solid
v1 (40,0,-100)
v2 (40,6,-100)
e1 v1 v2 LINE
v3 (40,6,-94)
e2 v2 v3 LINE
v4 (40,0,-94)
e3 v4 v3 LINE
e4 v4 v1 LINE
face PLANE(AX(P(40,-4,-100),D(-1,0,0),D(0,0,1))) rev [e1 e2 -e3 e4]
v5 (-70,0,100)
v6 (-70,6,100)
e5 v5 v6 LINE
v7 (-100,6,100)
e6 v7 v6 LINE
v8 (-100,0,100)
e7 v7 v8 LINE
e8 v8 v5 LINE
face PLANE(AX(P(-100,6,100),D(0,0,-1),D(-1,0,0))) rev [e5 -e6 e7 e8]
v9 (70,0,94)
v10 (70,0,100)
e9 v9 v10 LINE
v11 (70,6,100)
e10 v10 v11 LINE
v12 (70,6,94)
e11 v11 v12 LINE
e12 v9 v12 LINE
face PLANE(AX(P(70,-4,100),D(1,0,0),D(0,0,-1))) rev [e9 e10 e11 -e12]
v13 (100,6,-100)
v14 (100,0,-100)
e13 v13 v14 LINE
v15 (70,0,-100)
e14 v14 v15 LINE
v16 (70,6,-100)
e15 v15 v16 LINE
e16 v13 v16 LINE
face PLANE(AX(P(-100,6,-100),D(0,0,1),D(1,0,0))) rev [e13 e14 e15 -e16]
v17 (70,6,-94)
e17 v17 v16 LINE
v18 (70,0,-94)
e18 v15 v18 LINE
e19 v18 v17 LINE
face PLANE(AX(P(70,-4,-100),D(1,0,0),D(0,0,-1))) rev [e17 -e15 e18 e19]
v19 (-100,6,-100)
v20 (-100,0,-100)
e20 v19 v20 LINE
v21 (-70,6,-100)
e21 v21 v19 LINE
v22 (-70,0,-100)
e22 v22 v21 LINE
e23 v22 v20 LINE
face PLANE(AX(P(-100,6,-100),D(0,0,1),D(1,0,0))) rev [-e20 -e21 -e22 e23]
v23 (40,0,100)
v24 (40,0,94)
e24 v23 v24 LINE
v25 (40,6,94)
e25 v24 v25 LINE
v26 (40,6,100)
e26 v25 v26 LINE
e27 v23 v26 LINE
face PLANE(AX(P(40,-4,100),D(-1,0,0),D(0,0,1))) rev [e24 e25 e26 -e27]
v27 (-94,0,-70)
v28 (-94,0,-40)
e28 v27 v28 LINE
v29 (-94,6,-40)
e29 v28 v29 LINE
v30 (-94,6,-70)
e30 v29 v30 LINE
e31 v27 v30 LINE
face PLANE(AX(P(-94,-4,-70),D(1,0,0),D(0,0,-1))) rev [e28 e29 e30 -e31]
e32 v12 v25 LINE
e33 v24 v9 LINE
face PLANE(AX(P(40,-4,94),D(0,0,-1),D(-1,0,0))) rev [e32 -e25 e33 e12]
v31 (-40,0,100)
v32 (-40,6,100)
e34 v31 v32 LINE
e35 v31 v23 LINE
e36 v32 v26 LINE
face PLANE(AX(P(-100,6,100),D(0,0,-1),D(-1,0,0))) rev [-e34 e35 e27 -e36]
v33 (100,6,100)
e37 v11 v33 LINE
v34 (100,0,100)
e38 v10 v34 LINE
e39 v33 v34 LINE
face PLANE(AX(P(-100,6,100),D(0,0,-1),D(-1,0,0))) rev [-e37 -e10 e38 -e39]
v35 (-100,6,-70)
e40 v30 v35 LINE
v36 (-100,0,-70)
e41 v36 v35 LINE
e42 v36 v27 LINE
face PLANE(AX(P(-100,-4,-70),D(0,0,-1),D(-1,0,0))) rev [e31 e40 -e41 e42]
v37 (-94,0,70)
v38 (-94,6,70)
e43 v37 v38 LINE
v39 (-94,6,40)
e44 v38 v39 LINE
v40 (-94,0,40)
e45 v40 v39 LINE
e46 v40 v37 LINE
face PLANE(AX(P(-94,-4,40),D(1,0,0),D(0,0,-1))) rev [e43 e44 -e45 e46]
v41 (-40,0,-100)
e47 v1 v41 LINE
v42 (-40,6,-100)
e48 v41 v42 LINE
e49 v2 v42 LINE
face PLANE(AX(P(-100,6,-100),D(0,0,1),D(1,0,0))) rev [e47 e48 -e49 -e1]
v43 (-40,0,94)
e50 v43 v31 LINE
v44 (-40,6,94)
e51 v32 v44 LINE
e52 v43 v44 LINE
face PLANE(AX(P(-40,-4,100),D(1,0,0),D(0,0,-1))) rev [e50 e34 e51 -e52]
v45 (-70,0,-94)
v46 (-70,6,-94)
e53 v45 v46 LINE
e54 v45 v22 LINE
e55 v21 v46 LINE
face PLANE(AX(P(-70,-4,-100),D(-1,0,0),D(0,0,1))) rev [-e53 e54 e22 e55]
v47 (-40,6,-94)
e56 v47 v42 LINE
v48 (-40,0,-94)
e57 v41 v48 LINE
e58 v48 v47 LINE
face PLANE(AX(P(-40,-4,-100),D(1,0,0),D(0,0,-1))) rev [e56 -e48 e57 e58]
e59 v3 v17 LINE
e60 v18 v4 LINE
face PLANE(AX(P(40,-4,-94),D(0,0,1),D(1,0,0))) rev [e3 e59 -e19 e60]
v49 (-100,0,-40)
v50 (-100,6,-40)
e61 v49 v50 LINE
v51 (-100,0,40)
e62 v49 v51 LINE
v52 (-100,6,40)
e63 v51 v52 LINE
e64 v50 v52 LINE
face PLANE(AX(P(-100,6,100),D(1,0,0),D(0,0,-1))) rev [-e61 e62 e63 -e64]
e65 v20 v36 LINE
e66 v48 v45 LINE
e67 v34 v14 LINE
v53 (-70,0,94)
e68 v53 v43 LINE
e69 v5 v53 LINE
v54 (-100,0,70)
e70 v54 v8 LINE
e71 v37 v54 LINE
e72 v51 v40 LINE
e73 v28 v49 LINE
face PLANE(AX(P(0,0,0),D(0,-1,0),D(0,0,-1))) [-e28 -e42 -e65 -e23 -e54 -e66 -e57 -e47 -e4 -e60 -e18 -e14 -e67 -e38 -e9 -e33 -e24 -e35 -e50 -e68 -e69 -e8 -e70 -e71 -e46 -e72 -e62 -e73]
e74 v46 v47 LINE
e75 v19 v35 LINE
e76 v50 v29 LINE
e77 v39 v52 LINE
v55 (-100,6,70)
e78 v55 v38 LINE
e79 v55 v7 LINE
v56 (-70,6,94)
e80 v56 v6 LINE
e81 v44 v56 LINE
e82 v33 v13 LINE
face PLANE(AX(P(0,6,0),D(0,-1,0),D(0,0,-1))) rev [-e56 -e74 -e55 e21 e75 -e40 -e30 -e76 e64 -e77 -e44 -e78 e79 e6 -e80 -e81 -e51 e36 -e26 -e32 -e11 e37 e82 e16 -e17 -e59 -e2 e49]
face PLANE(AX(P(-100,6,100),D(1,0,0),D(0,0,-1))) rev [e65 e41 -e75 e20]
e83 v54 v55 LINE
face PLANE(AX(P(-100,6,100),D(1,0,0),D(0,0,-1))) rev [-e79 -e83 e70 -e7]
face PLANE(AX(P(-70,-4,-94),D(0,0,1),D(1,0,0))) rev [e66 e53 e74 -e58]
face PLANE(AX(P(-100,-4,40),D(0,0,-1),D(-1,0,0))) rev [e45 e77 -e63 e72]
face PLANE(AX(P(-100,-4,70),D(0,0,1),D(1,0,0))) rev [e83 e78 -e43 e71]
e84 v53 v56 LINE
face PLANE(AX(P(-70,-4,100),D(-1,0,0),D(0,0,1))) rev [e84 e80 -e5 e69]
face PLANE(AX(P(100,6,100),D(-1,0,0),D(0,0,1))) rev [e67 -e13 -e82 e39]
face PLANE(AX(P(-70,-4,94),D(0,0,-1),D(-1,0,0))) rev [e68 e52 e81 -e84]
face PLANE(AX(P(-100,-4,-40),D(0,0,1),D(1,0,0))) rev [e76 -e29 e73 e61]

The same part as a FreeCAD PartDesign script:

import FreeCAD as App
import Part
import Sketcher
from FreeCAD import Vector
Q = App.Units.Quantity


def add_polygon(sketch, points):
    """Adds a closed chain of lines whose ends are joined by coincident constraints."""
    first, n = sketch.GeometryCount, len(points)
    for a, b in zip(points, points[1:] + points[:1]):
        sketch.addGeometry(Part.LineSegment(App.Vector(*a, 0), App.Vector(*b, 0)), False)
    for i in range(n):
        sketch.addConstraint(Sketcher.Constraint("Coincident", first + i, 2, first + (i + 1) % n, 1))

doc = App.newDocument("Part")
body = doc.addObject("PartDesign::Body", "Body")

sketch1 = doc.addObject("Sketcher::SketchObject", "Sketch")
body.addObject(sketch1)
sketch1.AttachmentSupport = (doc.XZ_Plane, [""])
sketch1.MapMode = "FlatFace"
add_polygon(sketch1, [(-100, -100), (-100, 100), (100, 100), (100, -100)])
sketch1.addConstraint([
    Sketcher.Constraint("Vertical", 0),
    Sketcher.Constraint("Horizontal", 1),
    Sketcher.Constraint("Vertical", 2),
    Sketcher.Constraint("Horizontal", 3),
    Sketcher.Constraint("Symmetric", 0, 2, 2, 2, -1, 1),
    Sketcher.Constraint("Equal", 3, 0),
    Sketcher.Constraint("DistanceX", 1, 1, 1, 2, Q("200 mm")),
])
pad1 = doc.addObject("PartDesign::Pad", "Pad")
body.addObject(pad1)
pad1.Profile = sketch1
pad1.Length = 6
pad1.Reversed = True

sketch2 = doc.addObject("Sketcher::SketchObject", "Sketch001")
body.addObject(sketch2)
sketch2.AttachmentSupport = (doc.XZ_Plane, [""])
sketch2.MapMode = "FlatFace"
sketch2.AttachmentOffset = App.Placement(Vector(0, 0, -6), App.Rotation())
add_polygon(sketch2, [(-70, 94), (-70, 100), (-40, 100), (-40, 94)])
add_polygon(sketch2, [(40, 94), (40, 100), (70, 100), (70, 94)])
add_polygon(sketch2, [(-70, -100), (-70, -94), (-40, -94), (-40, -100)])
add_polygon(sketch2, [(40, -100), (40, -94), (70, -94), (70, -100)])
add_polygon(sketch2, [(-100, -70), (-100, -40), (-94, -40), (-94, -70)])
add_polygon(sketch2, [(-100, 40), (-100, 70), (-94, 70), (-94, 40)])
sketch2.addConstraint([
    Sketcher.Constraint("Vertical", 0),
    Sketcher.Constraint("Horizontal", 1),
    Sketcher.Constraint("Vertical", 2),
    Sketcher.Constraint("Horizontal", 3),
    Sketcher.Constraint("Vertical", 4),
    Sketcher.Constraint("Horizontal", 5),
    Sketcher.Constraint("Vertical", 6),
    Sketcher.Constraint("Horizontal", 7),
    Sketcher.Constraint("Vertical", 8),
    Sketcher.Constraint("Horizontal", 9),
    Sketcher.Constraint("Vertical", 10),
    Sketcher.Constraint("Horizontal", 11),
    Sketcher.Constraint("Vertical", 12),
    Sketcher.Constraint("Horizontal", 13),
    Sketcher.Constraint("Vertical", 14),
    Sketcher.Constraint("Horizontal", 15),
    Sketcher.Constraint("Vertical", 16),
    Sketcher.Constraint("Horizontal", 17),
    Sketcher.Constraint("Vertical", 18),
    Sketcher.Constraint("Horizontal", 19),
    Sketcher.Constraint("Vertical", 20),
    Sketcher.Constraint("Horizontal", 21),
    Sketcher.Constraint("Vertical", 22),
    Sketcher.Constraint("Horizontal", 23),
    Sketcher.Constraint("Symmetric", 6, 2, 8, 2, -1, 1),
    Sketcher.Constraint("Symmetric", 4, 2, 10, 2, -1, 1),
    Sketcher.Constraint("Symmetric", 2, 2, 12, 2, -1, 1),
    Sketcher.Constraint("Symmetric", 0, 2, 14, 2, -1, 1),
    Sketcher.Constraint("Symmetric", 1, 2, 4, 2, -2),
    Sketcher.Constraint("Symmetric", 3, 2, 6, 2, -2),
    Sketcher.Constraint("Symmetric", 19, 2, 20, 2, -1),
    Sketcher.Constraint("Symmetric", 17, 2, 22, 2, -1),
    Sketcher.Constraint("Equal", 23, 0),
    Sketcher.Constraint("Equal", 15, 16),
    Sketcher.Constraint("DistanceX", 1, 1, 1, 2, Q("30 mm")),
    Sketcher.Constraint("DistanceX", 17, 1, 17, 2, Q("6 mm")),
    Sketcher.Constraint("DistanceX", 0, 2, -1, 1, Q("70 mm")),
    Sketcher.Constraint("DistanceY", -1, 1, 0, 2, Q("100 mm")),
    Sketcher.Constraint("DistanceX", 16, 2, -1, 1, Q("100 mm")),
    Sketcher.Constraint("DistanceY", 16, 2, -1, 1, Q("40 mm")),
])
pocket1 = doc.addObject("PartDesign::Pocket", "Pocket")
body.addObject(pocket1)
pocket1.Profile = sketch2
pocket1.Length = 10
pocket1.Reversed = True

doc.recompute()
